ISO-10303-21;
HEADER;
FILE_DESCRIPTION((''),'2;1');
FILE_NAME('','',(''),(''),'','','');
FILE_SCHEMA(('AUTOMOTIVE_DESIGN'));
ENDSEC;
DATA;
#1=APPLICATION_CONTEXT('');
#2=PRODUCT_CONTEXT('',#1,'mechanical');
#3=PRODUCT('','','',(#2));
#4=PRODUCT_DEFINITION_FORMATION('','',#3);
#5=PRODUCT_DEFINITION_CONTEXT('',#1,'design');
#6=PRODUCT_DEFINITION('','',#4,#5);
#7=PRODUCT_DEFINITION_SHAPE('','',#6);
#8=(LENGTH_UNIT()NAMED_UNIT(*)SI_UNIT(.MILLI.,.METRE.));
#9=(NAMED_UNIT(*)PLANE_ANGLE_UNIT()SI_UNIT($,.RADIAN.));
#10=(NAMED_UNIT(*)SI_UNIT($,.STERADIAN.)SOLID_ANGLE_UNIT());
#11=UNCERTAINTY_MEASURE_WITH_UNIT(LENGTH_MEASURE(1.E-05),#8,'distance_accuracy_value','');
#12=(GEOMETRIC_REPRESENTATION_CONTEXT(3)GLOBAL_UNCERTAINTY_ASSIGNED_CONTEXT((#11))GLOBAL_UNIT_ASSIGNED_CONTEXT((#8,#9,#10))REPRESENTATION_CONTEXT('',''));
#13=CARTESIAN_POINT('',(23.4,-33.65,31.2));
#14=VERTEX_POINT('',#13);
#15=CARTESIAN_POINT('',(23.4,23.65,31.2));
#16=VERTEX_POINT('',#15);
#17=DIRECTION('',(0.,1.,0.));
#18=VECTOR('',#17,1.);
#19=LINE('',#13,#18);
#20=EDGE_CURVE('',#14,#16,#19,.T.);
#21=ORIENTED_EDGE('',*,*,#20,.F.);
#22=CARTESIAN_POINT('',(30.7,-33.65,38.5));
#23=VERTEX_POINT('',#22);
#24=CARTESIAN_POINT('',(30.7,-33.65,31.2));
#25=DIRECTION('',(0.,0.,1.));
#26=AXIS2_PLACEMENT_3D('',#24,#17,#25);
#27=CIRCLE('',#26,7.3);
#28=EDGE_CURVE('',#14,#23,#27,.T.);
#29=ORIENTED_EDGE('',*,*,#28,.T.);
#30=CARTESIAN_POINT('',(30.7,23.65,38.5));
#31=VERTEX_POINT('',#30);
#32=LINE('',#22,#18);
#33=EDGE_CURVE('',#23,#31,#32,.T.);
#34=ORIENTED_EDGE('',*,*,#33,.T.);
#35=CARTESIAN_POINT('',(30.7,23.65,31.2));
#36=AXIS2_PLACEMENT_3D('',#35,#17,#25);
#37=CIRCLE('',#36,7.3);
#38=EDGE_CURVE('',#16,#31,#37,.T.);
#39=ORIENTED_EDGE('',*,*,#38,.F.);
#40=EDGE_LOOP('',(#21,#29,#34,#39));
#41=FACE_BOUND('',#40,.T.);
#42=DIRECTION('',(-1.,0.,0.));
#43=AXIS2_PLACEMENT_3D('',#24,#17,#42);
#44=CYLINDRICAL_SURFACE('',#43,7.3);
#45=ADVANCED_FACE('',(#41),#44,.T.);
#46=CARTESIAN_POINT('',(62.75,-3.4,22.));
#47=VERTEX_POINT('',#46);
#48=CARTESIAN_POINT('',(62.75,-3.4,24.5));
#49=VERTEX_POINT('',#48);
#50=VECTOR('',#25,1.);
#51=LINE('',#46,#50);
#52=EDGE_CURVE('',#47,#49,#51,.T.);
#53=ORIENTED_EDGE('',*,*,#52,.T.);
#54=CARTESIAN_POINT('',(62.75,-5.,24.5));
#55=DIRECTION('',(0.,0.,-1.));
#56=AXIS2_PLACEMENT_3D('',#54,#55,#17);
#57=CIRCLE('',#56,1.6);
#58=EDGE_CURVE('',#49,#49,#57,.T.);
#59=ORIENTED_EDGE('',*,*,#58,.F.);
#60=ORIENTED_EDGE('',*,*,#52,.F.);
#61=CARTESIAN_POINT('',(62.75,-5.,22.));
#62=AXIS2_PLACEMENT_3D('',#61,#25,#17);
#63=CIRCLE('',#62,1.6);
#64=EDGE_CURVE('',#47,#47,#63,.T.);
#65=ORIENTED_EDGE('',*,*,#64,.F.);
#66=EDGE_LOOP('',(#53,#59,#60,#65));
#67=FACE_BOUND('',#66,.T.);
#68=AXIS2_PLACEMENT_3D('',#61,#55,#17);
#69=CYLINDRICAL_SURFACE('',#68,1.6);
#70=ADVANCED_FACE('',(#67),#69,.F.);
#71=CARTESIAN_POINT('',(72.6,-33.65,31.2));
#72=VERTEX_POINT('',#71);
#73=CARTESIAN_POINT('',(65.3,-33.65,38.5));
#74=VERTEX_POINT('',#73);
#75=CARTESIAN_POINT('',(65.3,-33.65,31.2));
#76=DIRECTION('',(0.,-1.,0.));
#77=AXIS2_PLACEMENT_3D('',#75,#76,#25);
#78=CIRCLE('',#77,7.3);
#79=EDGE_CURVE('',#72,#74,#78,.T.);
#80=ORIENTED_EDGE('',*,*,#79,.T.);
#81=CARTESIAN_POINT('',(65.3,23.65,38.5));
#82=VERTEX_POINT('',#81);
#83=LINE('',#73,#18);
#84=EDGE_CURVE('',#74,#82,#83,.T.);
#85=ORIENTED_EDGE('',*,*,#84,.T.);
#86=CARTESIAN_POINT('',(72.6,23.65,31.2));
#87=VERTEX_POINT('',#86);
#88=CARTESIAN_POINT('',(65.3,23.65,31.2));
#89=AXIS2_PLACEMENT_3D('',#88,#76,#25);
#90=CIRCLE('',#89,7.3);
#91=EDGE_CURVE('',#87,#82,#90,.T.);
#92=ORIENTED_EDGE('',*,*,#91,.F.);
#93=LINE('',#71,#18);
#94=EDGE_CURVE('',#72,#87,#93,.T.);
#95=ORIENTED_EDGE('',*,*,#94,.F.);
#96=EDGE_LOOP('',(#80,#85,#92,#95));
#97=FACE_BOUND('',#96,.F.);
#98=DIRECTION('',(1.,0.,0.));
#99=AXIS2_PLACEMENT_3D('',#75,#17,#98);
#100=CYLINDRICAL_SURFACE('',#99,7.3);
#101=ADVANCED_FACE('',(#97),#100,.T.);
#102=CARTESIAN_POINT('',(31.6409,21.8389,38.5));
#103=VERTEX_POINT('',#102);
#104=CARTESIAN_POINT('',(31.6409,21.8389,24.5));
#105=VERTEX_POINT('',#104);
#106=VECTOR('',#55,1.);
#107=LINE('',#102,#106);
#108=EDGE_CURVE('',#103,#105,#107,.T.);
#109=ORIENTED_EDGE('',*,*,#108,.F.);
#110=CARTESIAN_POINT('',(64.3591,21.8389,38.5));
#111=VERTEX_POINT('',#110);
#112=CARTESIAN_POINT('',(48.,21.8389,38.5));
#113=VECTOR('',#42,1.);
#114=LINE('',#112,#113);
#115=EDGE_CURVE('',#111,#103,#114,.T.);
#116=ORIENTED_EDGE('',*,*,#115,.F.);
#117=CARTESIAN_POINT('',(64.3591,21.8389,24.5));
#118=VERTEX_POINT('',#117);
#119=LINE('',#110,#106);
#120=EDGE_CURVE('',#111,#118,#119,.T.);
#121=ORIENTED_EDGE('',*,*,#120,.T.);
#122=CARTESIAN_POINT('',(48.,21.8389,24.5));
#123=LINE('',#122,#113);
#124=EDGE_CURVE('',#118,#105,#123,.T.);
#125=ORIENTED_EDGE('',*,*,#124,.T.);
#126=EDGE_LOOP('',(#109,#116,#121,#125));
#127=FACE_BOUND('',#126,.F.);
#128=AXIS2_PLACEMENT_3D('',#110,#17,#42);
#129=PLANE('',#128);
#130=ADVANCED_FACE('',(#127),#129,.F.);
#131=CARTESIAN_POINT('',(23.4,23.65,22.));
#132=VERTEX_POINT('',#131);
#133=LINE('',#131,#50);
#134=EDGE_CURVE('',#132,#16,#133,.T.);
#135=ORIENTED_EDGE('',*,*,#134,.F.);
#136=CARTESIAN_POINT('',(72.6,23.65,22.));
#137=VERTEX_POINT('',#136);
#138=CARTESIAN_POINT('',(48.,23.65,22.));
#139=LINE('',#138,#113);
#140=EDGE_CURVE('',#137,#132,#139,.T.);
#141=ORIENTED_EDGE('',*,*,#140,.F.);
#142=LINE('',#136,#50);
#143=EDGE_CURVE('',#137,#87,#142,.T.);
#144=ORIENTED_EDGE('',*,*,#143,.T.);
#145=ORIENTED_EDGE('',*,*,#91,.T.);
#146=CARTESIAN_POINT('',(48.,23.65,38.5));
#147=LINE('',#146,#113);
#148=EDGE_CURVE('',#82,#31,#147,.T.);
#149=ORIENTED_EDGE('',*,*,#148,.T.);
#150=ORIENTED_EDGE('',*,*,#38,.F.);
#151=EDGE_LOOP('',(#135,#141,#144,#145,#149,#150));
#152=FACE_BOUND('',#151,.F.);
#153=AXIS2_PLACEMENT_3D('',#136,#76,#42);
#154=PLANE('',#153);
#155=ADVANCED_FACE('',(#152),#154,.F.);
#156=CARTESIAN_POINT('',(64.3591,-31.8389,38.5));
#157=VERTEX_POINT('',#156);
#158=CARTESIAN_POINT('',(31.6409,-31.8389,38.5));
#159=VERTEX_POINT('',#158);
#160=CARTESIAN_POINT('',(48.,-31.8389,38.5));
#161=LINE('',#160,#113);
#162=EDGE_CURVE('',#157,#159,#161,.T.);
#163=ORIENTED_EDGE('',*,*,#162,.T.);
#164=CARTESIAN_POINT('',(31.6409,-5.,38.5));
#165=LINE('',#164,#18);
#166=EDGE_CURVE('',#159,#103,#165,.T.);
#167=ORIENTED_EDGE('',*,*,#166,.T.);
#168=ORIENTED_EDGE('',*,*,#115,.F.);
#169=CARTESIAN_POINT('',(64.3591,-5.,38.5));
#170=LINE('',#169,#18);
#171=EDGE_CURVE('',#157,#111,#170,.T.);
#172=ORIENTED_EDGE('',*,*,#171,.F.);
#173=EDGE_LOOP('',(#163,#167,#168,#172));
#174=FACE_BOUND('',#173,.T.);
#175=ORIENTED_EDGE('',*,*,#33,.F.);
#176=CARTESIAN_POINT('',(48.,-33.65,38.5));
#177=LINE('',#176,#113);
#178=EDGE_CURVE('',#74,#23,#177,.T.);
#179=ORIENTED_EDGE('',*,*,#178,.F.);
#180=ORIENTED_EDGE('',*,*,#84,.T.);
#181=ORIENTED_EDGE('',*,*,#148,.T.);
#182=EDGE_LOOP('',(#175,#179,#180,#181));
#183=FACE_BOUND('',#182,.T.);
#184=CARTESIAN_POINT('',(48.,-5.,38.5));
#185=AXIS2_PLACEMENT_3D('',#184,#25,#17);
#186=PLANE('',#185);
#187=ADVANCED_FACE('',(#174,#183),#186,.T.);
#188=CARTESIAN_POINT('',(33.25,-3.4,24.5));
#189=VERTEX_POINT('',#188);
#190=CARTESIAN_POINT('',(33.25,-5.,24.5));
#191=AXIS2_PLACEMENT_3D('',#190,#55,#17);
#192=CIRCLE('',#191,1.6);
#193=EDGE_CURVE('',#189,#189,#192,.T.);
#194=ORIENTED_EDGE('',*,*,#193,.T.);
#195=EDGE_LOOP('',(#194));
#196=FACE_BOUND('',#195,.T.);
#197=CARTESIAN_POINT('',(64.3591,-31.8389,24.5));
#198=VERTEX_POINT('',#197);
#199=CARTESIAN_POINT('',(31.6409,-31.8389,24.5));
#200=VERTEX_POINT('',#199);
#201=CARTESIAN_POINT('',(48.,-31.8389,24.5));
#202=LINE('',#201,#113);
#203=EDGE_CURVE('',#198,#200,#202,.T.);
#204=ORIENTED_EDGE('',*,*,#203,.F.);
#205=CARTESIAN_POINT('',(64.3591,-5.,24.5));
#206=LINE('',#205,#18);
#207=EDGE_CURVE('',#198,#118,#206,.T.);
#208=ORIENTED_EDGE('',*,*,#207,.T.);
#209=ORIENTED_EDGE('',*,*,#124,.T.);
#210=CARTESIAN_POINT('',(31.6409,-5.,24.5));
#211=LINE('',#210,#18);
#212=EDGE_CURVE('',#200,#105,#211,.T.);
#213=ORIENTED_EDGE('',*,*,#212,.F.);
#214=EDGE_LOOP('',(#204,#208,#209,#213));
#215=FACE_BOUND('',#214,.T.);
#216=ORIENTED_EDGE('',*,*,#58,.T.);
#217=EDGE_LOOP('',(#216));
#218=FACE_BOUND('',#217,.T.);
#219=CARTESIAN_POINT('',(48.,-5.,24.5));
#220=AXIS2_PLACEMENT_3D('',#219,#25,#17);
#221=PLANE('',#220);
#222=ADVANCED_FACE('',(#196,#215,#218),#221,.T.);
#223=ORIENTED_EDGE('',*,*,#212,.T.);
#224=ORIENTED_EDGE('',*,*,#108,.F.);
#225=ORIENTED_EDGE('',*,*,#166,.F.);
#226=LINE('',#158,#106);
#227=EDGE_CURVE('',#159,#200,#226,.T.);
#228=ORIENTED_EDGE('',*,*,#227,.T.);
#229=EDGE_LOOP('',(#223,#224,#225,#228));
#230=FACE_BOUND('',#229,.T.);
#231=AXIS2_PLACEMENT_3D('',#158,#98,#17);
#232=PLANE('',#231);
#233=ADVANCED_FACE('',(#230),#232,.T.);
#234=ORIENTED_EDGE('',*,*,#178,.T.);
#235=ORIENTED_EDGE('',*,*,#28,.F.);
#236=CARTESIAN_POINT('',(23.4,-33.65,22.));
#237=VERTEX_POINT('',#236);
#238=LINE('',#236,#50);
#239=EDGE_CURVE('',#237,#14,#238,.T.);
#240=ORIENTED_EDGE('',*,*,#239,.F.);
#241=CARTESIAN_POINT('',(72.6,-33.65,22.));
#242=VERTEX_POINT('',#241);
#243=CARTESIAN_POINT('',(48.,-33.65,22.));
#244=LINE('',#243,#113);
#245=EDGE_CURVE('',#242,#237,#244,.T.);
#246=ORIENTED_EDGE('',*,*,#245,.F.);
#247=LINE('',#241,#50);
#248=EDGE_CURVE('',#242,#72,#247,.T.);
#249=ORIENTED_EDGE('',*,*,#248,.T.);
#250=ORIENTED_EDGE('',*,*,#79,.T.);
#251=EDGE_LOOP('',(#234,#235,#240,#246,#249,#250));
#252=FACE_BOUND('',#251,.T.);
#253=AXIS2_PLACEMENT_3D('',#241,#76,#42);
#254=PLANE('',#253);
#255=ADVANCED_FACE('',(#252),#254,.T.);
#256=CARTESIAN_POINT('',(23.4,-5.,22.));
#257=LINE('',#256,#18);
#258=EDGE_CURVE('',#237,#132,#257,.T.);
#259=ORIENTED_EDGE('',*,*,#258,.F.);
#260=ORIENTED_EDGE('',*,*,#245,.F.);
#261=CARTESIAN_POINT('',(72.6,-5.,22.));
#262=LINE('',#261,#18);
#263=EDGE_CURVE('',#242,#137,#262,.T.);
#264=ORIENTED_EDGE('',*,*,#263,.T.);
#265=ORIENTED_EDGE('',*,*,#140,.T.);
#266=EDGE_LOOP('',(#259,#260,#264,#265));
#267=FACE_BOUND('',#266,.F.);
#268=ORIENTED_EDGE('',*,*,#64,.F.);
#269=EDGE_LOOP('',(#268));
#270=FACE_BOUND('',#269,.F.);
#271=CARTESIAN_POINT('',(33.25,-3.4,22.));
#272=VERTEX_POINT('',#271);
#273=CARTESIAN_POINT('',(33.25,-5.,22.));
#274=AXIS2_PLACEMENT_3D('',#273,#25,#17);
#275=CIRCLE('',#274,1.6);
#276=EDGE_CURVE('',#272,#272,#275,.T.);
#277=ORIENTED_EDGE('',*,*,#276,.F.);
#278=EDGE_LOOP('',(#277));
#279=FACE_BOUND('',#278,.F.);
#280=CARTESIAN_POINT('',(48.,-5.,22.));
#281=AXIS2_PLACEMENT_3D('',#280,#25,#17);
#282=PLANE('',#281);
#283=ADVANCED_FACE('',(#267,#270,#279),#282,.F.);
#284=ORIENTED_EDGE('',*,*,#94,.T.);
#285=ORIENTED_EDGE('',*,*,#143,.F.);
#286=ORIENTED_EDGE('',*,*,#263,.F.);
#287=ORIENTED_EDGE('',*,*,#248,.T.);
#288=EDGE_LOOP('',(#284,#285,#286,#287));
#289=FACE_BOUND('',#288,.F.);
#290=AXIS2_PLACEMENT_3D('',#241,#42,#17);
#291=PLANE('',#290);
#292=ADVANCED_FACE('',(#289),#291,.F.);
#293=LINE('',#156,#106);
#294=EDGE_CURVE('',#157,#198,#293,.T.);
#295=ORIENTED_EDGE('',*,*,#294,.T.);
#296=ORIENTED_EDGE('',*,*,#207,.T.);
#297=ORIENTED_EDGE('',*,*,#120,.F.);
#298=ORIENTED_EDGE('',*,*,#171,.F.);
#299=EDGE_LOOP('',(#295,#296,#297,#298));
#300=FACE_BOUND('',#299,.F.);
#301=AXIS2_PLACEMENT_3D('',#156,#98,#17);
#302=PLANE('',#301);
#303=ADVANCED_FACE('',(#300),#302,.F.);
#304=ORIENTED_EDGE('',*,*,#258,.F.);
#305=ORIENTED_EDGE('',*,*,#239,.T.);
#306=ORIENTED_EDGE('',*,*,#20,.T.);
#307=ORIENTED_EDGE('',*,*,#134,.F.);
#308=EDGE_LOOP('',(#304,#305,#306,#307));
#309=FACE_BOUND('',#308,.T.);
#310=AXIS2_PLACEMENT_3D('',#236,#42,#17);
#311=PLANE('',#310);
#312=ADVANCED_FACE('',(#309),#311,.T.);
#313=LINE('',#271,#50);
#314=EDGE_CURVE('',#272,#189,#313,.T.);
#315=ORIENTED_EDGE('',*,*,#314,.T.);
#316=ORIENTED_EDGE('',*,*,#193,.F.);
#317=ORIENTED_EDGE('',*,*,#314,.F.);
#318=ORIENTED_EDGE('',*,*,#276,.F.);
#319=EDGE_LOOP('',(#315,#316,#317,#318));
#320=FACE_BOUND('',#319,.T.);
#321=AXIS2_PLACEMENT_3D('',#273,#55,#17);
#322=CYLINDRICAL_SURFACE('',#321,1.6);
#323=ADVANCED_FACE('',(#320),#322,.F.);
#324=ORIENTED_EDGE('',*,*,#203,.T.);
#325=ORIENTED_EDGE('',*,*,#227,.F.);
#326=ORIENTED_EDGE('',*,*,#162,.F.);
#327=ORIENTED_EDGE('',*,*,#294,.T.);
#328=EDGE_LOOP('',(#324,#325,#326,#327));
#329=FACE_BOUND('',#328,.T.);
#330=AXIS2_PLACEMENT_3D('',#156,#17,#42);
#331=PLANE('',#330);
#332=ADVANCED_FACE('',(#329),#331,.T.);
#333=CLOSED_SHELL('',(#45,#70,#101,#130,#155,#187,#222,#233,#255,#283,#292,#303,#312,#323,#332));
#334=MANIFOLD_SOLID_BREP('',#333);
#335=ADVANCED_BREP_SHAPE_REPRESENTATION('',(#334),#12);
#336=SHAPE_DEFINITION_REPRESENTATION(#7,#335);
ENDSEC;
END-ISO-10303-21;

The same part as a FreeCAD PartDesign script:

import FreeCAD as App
import Part
import Sketcher


def edges_at(feature, points):
    """Names of the edges that pass closest to the given points."""
    edges = feature.Shape.Edges
    near = lambda p: min(range(len(edges)), key=lambda i: edges[i].distToShape(Part.Vertex(*p))[0])
    return sorted({f"Edge{near(p) + 1}" for p in points})


def add_polygon(sketch, points):
    """Adds a closed chain of lines whose ends are joined by coincident constraints."""
    first, n = sketch.GeometryCount, len(points)
    for a, b in zip(points, points[1:] + points[:1]):
        sketch.addGeometry(Part.LineSegment(App.Vector(*a, 0), App.Vector(*b, 0)), False)
    for i in range(n):
        sketch.addConstraint(Sketcher.Constraint("Coincident", first + i, 2, first + (i + 1) % n, 1))

doc = App.newDocument("Part")
body = doc.addObject("PartDesign::Body", "Body")

sketch1 = body.newObject("Sketcher::SketchObject", "Sketch")
sketch1.AttachmentSupport = (doc.getObject("XY_Plane"), [""])
sketch1.MapMode = "FlatFace"
sketch1.AttachmentOffset = App.Placement(App.Vector(0, 0, 22), App.Rotation())
add_polygon(sketch1, [(23.4, -33.6), (72.6, -33.6), (72.6, 23.6), (23.4, 23.6)])
sketch1.addGeometry(Part.Circle(App.Vector(62.8, -5, 0), App.Vector(0, 0, 1), 1.6), False)
sketch1.addGeometry(Part.Circle(App.Vector(33.2, -5, 0), App.Vector(0, 0, 1), 1.6), False)
sketch1.addConstraint([
    Sketcher.Constraint("Horizontal", 0),
    Sketcher.Constraint("Vertical", 1),
    Sketcher.Constraint("Horizontal", 2),
    Sketcher.Constraint("Vertical", 3),
    Sketcher.Constraint("Equal", 4, 5),
    Sketcher.Constraint("Horizontal", 4, 3, 5, 3),
    Sketcher.Constraint("Diameter", 4, 3.2),
    Sketcher.Constraint("DistanceX", 0, 1, 0, 2, 49.2),
    Sketcher.Constraint("DistanceY", 1, 1, 1, 2, 57.3),
    Sketcher.Constraint("DistanceY", 4, 3, -1, 1, 5.0),
    Sketcher.Constraint("DistanceX", -1, 1, 0, 2, 72.6),
    Sketcher.Constraint("DistanceX", 5, 3, 4, 3, 29.5),
    Sketcher.Constraint("DistanceX", -1, 1, 4, 3, 62.75),
    Sketcher.Constraint("DistanceY", 0, 2, -1, 1, 33.65),
])
pad1 = body.newObject("PartDesign::Pad", "Pad")
pad1.Profile = sketch1
pad1.Length = 16.5
doc.recompute()

fillet = body.newObject("PartDesign::Fillet", "Fillet")
fillet.Base = (pad1, edges_at(pad1, [(72.6, -5, 38.5), (23.4, -5, 38.5)]))
fillet.Radius = 7.3

sketch2 = body.newObject("Sketcher::SketchObject", "Sketch001")
sketch2.AttachmentSupport = (doc.getObject("XY_Plane"), [""])
sketch2.MapMode = "FlatFace"
sketch2.AttachmentOffset = App.Placement(App.Vector(0, 0, 38.5), App.Rotation())
add_polygon(sketch2, [(32, -32), (64, -32), (64, 22), (32, 22)])
sketch2.addConstraint([
    Sketcher.Constraint("Horizontal", 0),
    Sketcher.Constraint("Vertical", 1),
    Sketcher.Constraint("Horizontal", 2),
    Sketcher.Constraint("Vertical", 3),
    Sketcher.Constraint("DistanceX", 0, 1, 0, 2, 32.7182),
    Sketcher.Constraint("DistanceY", 1, 1, 1, 2, 53.6778),
    Sketcher.Constraint("DistanceX", -1, 1, 0, 2, 64.3591),
    Sketcher.Constraint("DistanceY", 0, 2, -1, 1, 31.8389),
])
pocket1 = body.newObject("PartDesign::Pocket", "Pocket")
pocket1.Profile = sketch2
pocket1.Length = 14

doc.recompute()
